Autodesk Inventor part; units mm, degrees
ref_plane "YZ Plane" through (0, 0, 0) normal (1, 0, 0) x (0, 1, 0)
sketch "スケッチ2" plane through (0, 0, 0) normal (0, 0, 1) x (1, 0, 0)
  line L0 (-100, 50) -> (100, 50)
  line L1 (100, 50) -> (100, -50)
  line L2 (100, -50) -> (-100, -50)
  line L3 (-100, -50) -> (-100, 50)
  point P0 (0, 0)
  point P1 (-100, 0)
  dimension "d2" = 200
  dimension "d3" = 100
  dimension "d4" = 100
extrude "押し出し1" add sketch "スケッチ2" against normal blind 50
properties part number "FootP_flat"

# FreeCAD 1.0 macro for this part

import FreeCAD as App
import Part
import Sketcher

V = App.Vector
Q = App.Units.Quantity


def add_polygon(sketch, points):
    """Adds a closed chain of lines whose ends are joined by coincident constraints."""
    first, n = sketch.GeometryCount, len(points)
    for a, b in zip(points, points[1:] + points[:1]):
        sketch.addGeometry(Part.LineSegment(App.Vector(*a, 0), App.Vector(*b, 0)), False)
    for i in range(n):
        sketch.addConstraint(Sketcher.Constraint("Coincident", first + i, 2, first + (i + 1) % n, 1))

doc = App.newDocument("Part")
params = doc.addObject("Spreadsheet::Sheet", "Params")
for row, (alias, value) in enumerate([
    ("sketch1_width", "200 mm"),
    ("sketch1_height", "100 mm"),
    ("pad1_length", "50 mm"),
], start=1):
    params.set(f"A{row}", alias)
    params.set(f"B{row}", "=" + value)
    params.setAlias(f"B{row}", alias)

body = doc.addObject("PartDesign::Body", "Body")

sketch1 = doc.addObject("Sketcher::SketchObject", "Sketch")
body.addObject(sketch1)
sketch1.AttachmentSupport = (doc.XY_Plane, [""])
sketch1.MapMode = "FlatFace"
add_polygon(sketch1, [(100, 50), (-100, 50), (-100, -50), (100, -50)])
sketch1.addConstraint([
    Sketcher.Constraint("Horizontal", 0),
    Sketcher.Constraint("Vertical", 1),
    Sketcher.Constraint("Horizontal", 2),
    Sketcher.Constraint("Vertical", 3),
    Sketcher.Constraint("Symmetric", 0, 2, 2, 2, -1, 1),
    Sketcher.Constraint("DistanceX", 0, 2, 0, 1, Q("200 mm")),
    Sketcher.Constraint("DistanceY", 1, 2, 1, 1, Q("100 mm")),
])
sketch1.setExpression("Constraints[9]", "Params.sketch1_width")
sketch1.setExpression("Constraints[10]", "Params.sketch1_height")
pad1 = doc.addObject("PartDesign::Pad", "Pad")
body.addObject(pad1)
pad1.Profile = sketch1
pad1.setExpression("Length", "Params.pad1_length")
pad1.Reversed = True

doc.recompute()
